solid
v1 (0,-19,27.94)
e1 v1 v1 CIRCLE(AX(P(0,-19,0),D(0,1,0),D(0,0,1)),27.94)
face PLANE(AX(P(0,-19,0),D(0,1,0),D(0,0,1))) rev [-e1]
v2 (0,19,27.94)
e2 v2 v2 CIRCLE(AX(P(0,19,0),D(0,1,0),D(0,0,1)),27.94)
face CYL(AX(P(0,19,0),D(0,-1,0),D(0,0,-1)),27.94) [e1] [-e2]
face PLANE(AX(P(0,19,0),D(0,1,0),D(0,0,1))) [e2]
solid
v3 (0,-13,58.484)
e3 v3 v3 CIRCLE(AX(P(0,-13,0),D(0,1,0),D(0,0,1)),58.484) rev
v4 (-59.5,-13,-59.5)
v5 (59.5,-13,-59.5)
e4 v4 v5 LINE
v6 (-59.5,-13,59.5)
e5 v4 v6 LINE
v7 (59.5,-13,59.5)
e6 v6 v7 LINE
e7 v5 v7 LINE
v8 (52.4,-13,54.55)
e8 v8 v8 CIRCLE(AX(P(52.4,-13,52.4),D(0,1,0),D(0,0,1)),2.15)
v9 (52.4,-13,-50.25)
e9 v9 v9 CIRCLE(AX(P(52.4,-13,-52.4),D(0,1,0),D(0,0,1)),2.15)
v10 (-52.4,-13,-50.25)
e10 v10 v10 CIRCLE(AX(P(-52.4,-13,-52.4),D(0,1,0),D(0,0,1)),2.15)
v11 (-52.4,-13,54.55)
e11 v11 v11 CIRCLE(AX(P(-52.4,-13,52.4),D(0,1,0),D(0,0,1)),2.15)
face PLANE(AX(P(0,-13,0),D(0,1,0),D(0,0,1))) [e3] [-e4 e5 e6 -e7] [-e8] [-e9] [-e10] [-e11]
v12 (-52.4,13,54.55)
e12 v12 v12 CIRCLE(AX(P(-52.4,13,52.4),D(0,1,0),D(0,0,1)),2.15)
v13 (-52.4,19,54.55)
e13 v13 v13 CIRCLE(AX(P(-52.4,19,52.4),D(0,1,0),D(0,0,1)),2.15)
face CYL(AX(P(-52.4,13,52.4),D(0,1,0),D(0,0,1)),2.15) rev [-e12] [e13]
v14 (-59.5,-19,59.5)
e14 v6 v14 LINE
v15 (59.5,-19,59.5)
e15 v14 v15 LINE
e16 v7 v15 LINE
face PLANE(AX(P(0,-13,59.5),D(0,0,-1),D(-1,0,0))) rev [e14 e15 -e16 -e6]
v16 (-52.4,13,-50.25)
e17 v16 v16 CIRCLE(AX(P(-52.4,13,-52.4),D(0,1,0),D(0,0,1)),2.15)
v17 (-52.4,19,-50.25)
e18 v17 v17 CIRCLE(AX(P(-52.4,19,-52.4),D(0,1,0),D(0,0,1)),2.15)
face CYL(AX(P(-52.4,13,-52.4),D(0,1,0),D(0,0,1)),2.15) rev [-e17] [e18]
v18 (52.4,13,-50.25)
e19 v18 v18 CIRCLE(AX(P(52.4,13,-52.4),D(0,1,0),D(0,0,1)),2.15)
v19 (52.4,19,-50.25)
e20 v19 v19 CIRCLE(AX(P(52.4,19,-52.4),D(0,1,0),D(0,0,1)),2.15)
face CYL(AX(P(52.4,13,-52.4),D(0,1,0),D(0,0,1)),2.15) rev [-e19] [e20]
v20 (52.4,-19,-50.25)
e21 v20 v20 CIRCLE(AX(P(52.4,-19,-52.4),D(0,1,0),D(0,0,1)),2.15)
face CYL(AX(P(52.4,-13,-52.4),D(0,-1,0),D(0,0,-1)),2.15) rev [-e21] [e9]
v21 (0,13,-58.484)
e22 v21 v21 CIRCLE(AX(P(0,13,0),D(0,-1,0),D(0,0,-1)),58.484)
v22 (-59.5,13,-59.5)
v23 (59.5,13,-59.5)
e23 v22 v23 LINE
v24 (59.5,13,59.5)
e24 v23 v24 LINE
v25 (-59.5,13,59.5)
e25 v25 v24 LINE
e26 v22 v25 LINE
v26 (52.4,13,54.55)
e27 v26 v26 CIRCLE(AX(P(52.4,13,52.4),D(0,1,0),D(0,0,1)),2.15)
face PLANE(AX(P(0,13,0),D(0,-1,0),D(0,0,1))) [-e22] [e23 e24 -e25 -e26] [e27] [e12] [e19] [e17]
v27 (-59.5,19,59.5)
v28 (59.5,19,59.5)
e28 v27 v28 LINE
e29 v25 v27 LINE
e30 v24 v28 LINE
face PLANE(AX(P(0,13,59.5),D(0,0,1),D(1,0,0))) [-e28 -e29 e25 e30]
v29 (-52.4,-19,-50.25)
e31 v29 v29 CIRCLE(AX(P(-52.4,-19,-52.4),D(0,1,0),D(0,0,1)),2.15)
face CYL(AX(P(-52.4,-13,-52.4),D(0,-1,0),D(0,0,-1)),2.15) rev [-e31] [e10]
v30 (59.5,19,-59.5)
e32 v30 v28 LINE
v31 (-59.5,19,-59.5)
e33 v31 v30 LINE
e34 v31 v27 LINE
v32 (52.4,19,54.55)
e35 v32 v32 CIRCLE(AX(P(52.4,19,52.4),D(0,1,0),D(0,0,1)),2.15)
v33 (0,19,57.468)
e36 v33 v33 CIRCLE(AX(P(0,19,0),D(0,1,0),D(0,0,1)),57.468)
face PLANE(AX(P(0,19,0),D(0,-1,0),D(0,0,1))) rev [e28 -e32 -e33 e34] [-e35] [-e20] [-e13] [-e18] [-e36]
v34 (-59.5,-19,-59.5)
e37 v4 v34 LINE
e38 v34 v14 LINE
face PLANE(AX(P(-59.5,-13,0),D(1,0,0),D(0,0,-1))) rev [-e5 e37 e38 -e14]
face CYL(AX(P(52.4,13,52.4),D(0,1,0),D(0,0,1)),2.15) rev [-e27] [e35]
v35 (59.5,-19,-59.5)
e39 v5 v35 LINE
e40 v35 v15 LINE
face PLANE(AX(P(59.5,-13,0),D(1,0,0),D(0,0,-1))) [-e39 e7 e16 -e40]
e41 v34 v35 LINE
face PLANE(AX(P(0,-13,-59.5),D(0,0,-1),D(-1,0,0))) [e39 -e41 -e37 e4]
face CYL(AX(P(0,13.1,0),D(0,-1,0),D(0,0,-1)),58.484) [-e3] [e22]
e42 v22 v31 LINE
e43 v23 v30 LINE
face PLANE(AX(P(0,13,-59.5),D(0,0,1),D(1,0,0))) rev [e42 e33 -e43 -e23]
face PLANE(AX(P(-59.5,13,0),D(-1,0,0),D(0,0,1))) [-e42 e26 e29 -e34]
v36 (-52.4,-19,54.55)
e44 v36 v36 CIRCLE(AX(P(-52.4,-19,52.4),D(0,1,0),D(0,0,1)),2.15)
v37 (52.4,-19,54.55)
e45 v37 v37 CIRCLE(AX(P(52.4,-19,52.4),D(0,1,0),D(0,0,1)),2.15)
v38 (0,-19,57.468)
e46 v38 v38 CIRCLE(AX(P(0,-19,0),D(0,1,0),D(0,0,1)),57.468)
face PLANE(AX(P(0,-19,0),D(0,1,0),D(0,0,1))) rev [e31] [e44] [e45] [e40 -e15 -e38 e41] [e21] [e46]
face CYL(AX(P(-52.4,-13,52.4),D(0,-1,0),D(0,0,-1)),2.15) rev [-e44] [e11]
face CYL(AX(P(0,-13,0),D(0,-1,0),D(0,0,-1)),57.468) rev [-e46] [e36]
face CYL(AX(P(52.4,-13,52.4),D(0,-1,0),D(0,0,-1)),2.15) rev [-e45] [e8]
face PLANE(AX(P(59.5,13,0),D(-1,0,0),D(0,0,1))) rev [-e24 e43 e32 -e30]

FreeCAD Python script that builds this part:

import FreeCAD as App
import Part
import Sketcher

V = App.Vector
Q = App.Units.Quantity

doc = App.newDocument("Part")
body = doc.addObject("PartDesign::Body", "Body")

# Sketch on XZ plane
sketch1 = body.newObject("Sketcher::SketchObject", "Sketch")
sketch1.AttachmentSupport = (doc.getObject("XZ_Plane"), [""])
sketch1.MapMode = "FlatFace"
sketch1.AttachmentOffset = App.Placement(V(0, 0, 19), App.Rotation())
sketch1.addGeometry([
    Part.LineSegment(V(-59.5, -59.5, 0), V(-59.5, 59.5, 0)),  # 0
    Part.LineSegment(V(-59.5, 59.5, 0), V(59.5, 59.5, 0)),  # 1
    Part.LineSegment(V(59.5, 59.5, 0), V(59.5, -59.5, 0)),  # 2
    Part.LineSegment(V(59.5, -59.5, 0), V(-59.5, -59.5, 0)),  # 3
    Part.Circle(V(-52.4, 52.4, 0), V(0, 0, 1), 2.1),  # 4
    Part.Circle(V(52.4, 52.4, 0), V(0, 0, 1), 2.1),  # 5
    Part.Circle(V(-52.4, -52.4, 0), V(0, 0, 1), 2.1),  # 6
    Part.Circle(V(0, 0, 0), V(0, 0, 1), 57.5),  # 7
    Part.Circle(V(52.4, -52.4, 0), V(0, 0, 1), 2.1),  # 8
], False)
sketch1.addConstraint([
    Sketcher.Constraint("Coincident", 0, 2, 1, 1),
    Sketcher.Constraint("Coincident", 1, 2, 2, 1),
    Sketcher.Constraint("Coincident", 2, 2, 3, 1),
    Sketcher.Constraint("Coincident", 3, 2, 0, 1),
    Sketcher.Constraint("Vertical", 0),
    Sketcher.Constraint("Horizontal", 1),
    Sketcher.Constraint("Vertical", 2),
    Sketcher.Constraint("Horizontal", 3),
    Sketcher.Constraint("Coincident", 7, 3, -1, 1),
    Sketcher.Constraint("Equal", 4, 5),
    Sketcher.Constraint("Equal", 5, 6),
    Sketcher.Constraint("Equal", 6, 8),
    Sketcher.Constraint("Symmetric", 5, 3, 6, 3, -1, 1),
    Sketcher.Constraint("Symmetric", 4, 3, 8, 3, -1, 1),
    Sketcher.Constraint("Symmetric", 0, 2, 2, 2, -1, 1),
    Sketcher.Constraint("Symmetric", 4, 3, 5, 3, -2),
    Sketcher.Constraint("Equal", 3, 0),
    Sketcher.Constraint("Diameter", 4, Q("4.3 mm")),
    Sketcher.Constraint("DistanceX", 1, 1, 1, 2, Q("119 mm")),
    Sketcher.Constraint("Diameter", 7, Q("114.936 mm")),
    Sketcher.Constraint("DistanceX", 4, 3, -1, 1, Q("52.4 mm")),
    Sketcher.Constraint("DistanceY", -1, 1, 4, 3, Q("52.4 mm")),
])
pad1 = body.newObject("PartDesign::Pad", "Pad")
pad1.Profile = sketch1
pad1.Length = 6
pad1.Reversed = True

# Sketch on XZ plane
sketch2 = body.newObject("Sketcher::SketchObject", "Sketch001")
sketch2.AttachmentSupport = (doc.getObject("XZ_Plane"), [""])
sketch2.MapMode = "FlatFace"
sketch2.AttachmentOffset = App.Placement(V(0, 0, 13.1), App.Rotation())
sketch2.addGeometry([
    Part.Circle(V(0, 0, 0), V(0, 0, 1), 58),
    Part.Circle(V(0, 0, 0), V(0, 0, 1), 57),
], False)
sketch2.addConstraint([
    Sketcher.Constraint("Coincident", 0, 3, -1, 1),
    Sketcher.Constraint("Coincident", 1, 3, -1, 1),
    Sketcher.Constraint("Diameter", 0, Q("116.968 mm")),
    Sketcher.Constraint("Diameter", 1, Q("114.936 mm")),
])
pad2 = body.newObject("PartDesign::Pad", "Pad001")
pad2.Profile = sketch2
pad2.Length = 26.2
pad2.Reversed = True
doc.recompute()

mirrored = body.newObject("PartDesign::Mirrored", "Mirrored")
mirrored.Originals = [pad1]
mirrored.MirrorPlane = (doc.getObject("XZ_Plane"), [""])
body.Tip = mirrored
body2 = doc.addObject("PartDesign::Body", "Body001")

# Sketch on XZ plane
sketch3 = body2.newObject("Sketcher::SketchObject", "Sketch002")
sketch3.AttachmentSupport = (doc.getObject("XZ_Plane001"), [""])
sketch3.MapMode = "FlatFace"
sketch3.addGeometry(Part.Circle(V(0, 0, 0), V(0, 0, 1), 28), False)
sketch3.addConstraint([
    Sketcher.Constraint("Coincident", 0, 3, -1, 1),
    Sketcher.Constraint("Diameter", 0, Q("55.88 mm")),
])
pad3 = body2.newObject("PartDesign::Pad", "Pad002")
pad3.Profile = sketch3
pad3.Length = 38
pad3.Midplane = True

doc.recompute()
